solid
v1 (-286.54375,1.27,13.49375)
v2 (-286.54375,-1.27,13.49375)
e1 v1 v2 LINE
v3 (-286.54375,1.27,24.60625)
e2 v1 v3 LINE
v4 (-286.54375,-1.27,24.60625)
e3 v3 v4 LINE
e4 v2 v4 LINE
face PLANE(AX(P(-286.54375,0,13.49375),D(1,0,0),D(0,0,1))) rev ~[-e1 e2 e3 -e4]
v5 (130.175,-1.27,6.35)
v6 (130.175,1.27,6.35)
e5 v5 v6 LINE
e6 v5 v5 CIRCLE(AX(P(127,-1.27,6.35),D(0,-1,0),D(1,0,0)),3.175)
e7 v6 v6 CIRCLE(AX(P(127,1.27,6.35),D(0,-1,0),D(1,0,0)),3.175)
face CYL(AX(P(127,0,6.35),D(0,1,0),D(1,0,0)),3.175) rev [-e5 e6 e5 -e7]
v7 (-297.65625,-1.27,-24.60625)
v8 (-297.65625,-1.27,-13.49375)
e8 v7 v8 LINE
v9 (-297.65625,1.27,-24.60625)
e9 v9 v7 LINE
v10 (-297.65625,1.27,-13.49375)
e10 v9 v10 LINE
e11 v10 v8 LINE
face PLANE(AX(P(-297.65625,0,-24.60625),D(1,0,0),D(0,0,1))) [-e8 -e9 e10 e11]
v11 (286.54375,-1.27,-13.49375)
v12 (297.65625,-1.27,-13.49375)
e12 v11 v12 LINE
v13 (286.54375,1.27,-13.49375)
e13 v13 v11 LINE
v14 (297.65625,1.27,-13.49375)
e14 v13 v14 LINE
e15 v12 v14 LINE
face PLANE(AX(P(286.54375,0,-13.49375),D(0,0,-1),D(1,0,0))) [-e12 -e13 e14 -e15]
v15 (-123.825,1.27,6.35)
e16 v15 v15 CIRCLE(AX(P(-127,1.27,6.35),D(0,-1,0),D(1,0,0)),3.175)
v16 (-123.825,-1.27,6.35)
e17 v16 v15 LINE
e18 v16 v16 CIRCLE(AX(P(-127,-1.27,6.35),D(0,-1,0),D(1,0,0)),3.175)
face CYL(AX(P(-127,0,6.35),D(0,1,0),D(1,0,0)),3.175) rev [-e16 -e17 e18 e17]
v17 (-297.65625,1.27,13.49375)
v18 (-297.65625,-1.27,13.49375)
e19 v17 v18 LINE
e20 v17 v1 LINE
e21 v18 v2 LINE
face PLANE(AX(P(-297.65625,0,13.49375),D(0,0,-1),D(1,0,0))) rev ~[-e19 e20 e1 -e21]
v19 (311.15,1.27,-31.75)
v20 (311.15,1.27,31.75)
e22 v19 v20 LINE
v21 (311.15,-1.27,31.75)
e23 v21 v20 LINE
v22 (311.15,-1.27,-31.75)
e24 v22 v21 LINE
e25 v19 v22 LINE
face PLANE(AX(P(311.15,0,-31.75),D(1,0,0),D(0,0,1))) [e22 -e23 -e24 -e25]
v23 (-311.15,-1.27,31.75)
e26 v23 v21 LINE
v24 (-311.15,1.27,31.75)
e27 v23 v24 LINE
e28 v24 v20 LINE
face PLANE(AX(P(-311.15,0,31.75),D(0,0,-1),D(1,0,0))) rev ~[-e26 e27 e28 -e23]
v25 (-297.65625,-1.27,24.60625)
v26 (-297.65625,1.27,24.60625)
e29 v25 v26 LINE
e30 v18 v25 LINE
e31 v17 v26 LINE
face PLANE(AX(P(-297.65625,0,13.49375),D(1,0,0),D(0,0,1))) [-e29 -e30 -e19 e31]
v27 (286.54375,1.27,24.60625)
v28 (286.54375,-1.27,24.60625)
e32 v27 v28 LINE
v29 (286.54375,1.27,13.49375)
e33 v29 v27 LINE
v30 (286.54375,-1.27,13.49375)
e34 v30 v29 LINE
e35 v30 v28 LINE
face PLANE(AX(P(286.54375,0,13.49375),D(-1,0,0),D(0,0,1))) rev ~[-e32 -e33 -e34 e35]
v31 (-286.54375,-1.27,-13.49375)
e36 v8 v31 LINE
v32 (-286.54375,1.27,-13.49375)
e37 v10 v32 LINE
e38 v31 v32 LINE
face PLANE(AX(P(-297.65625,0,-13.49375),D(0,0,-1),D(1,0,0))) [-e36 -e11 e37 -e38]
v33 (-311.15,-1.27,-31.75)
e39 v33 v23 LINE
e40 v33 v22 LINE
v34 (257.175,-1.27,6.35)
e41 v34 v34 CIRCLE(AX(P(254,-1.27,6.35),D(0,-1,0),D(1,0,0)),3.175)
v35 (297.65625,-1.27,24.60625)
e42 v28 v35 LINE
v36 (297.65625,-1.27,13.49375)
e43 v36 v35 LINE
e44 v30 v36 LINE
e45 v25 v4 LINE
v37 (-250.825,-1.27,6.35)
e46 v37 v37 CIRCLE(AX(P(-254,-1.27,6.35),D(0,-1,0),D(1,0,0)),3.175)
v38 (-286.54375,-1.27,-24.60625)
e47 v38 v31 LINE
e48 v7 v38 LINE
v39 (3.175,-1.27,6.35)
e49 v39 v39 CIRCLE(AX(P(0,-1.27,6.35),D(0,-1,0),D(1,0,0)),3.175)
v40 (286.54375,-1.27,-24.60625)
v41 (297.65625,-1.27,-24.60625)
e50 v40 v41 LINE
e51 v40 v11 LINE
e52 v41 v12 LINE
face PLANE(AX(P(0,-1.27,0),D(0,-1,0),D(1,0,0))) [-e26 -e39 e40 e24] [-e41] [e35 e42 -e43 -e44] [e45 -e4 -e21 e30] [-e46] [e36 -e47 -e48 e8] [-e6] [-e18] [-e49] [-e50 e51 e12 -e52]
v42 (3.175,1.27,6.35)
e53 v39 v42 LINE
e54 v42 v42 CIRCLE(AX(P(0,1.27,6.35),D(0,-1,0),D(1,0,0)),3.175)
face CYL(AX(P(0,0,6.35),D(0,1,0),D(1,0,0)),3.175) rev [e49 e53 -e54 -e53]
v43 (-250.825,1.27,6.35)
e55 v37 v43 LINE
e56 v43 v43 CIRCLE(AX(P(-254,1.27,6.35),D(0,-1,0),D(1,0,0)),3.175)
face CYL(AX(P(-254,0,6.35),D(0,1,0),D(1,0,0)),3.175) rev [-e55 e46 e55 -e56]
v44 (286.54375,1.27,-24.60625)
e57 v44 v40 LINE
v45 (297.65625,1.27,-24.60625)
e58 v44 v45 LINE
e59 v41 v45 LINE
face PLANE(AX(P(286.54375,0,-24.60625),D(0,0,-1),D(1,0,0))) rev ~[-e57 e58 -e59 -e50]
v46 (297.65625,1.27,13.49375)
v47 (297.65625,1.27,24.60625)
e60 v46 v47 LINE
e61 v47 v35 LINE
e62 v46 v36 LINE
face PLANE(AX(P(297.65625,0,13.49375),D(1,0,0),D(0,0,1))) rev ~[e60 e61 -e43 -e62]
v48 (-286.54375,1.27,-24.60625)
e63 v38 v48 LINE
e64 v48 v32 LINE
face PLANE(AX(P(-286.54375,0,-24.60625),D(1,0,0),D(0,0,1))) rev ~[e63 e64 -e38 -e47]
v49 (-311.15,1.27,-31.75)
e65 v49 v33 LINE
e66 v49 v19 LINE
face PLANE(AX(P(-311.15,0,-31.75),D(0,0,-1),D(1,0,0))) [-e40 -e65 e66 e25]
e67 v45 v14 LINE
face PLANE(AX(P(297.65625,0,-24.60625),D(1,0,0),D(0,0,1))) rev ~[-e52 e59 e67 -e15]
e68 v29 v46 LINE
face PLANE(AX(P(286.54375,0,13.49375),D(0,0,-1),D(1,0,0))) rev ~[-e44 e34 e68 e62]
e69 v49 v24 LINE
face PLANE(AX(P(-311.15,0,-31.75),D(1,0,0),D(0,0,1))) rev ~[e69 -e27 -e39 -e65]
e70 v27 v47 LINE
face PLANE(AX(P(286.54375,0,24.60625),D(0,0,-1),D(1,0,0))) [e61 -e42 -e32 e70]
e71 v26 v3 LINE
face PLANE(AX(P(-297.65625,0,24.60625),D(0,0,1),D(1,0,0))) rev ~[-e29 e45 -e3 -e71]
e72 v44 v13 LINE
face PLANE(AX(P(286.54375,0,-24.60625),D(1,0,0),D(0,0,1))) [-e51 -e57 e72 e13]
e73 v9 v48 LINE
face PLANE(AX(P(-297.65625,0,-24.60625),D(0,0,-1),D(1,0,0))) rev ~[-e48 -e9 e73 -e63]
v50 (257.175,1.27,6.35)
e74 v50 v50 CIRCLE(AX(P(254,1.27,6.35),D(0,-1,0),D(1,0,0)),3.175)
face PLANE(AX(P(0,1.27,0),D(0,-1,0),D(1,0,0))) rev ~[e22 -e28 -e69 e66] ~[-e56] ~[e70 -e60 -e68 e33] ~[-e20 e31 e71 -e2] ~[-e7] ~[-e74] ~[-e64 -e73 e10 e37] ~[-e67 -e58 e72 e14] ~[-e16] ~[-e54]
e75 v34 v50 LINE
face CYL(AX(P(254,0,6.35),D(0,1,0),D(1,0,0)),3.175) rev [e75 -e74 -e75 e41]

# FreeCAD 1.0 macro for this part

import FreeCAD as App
import Part
import Sketcher

V = App.Vector
Q = App.Units.Quantity


def add_polygon(sketch, points):
    """Adds a closed chain of lines whose ends are joined by coincident constraints."""
    first, n = sketch.GeometryCount, len(points)
    for a, b in zip(points, points[1:] + points[:1]):
        sketch.addGeometry(Part.LineSegment(App.Vector(*a, 0), App.Vector(*b, 0)), False)
    for i in range(n):
        sketch.addConstraint(Sketcher.Constraint("Coincident", first + i, 2, first + (i + 1) % n, 1))

doc = App.newDocument("Part")
body = doc.addObject("PartDesign::Body", "Body")

sketch1 = body.newObject("Sketcher::SketchObject", "Sketch")
sketch1.AttachmentSupport = (doc.getObject("XZ_Plane"), [""])
sketch1.MapMode = "FlatFace"
add_polygon(sketch1, [(-311.15, 31.75), (-311.15, -31.75), (311.15, -31.75), (311.15, 31.75)])
add_polygon(sketch1, [(-286.54375, -24.60625), (-297.65625, -24.60625), (-297.65625, -13.49375), (-286.54375, -13.49375)])
add_polygon(sketch1, [(297.65625, -24.60625), (286.54375, -24.60625), (286.54375, -13.49375), (297.65625, -13.49375)])
sketch1.addGeometry(Part.Circle(V(-254, 6.35, 0), V(0, 0, 1), 3.175), False)
sketch1.addGeometry(Part.Circle(V(-127, 6.35, 0), V(0, 0, 1), 3.175), False)
add_polygon(sketch1, [(-286.54375, 13.49375), (-297.65625, 13.49375), (-297.65625, 24.60625), (-286.54375, 24.60625)])
sketch1.addGeometry(Part.Circle(V(0, 6.35, 0), V(0, 0, 1), 3.175), False)
sketch1.addGeometry(Part.Circle(V(127, 6.35, 0), V(0, 0, 1), 3.175), False)
sketch1.addGeometry(Part.Circle(V(254, 6.35, 0), V(0, 0, 1), 3.175), False)
add_polygon(sketch1, [(297.65625, 13.49375), (286.54375, 13.49375), (286.54375, 24.60625), (297.65625, 24.60625)])
sketch1.addConstraint(Sketcher.Constraint("Vertical", 0))
sketch1.addConstraint(Sketcher.Constraint("Horizontal", 1))
sketch1.addConstraint(Sketcher.Constraint("Vertical", 2))
sketch1.addConstraint(Sketcher.Constraint("Horizontal", 3))
sketch1.addConstraint(Sketcher.Constraint("Horizontal", 4))
sketch1.addConstraint(Sketcher.Constraint("Vertical", 5))
sketch1.addConstraint(Sketcher.Constraint("Horizontal", 6))
sketch1.addConstraint(Sketcher.Constraint("Vertical", 7))
sketch1.addConstraint(Sketcher.Constraint("Horizontal", 8))
sketch1.addConstraint(Sketcher.Constraint("Vertical", 9))
sketch1.addConstraint(Sketcher.Constraint("Horizontal", 10))
sketch1.addConstraint(Sketcher.Constraint("Vertical", 11))
sketch1.addConstraint(Sketcher.Constraint("Horizontal", 14))
sketch1.addConstraint(Sketcher.Constraint("Vertical", 15))
sketch1.addConstraint(Sketcher.Constraint("Horizontal", 16))
sketch1.addConstraint(Sketcher.Constraint("Vertical", 17))
sketch1.addConstraint(Sketcher.Constraint("Horizontal", 21))
sketch1.addConstraint(Sketcher.Constraint("Vertical", 22))
sketch1.addConstraint(Sketcher.Constraint("Horizontal", 23))
sketch1.addConstraint(Sketcher.Constraint("Vertical", 24))
sketch1.addConstraint(Sketcher.Constraint("Equal", 12, 13))
sketch1.addConstraint(Sketcher.Constraint("Equal", 13, 18))
sketch1.addConstraint(Sketcher.Constraint("Equal", 18, 19))
sketch1.addConstraint(Sketcher.Constraint("Equal", 19, 20))
sketch1.addConstraint(Sketcher.Constraint("Symmetric", 0, 2, 2, 2, -1, 1))
sketch1.addConstraint(Sketcher.Constraint("Symmetric", 10, 2, 14, 2, -1, 1))
sketch1.addConstraint(Sketcher.Constraint("Symmetric", 8, 2, 16, 2, -1, 1))
sketch1.addConstraint(Sketcher.Constraint("Symmetric", 6, 2, 21, 2, -1, 1))
sketch1.addConstraint(Sketcher.Constraint("Symmetric", 4, 2, 23, 2, -1, 1))
sketch1.addConstraint(Sketcher.Constraint("Symmetric", 13, 3, 19, 3, -2))
sketch1.addConstraint(Sketcher.Constraint("Symmetric", 12, 3, 20, 3, -2))
sketch1.addConstraint(Sketcher.Constraint("Symmetric", 7, 2, 8, 2, -2))
sketch1.addConstraint(Sketcher.Constraint("Symmetric", 5, 2, 10, 2, -2))
sketch1.addConstraint(Sketcher.Constraint("PointOnObject", 18, 3, -2))
sketch1.addConstraint(Sketcher.Constraint("Horizontal", 12, 3, 13, 3))
sketch1.addConstraint(Sketcher.Constraint("Horizontal", 13, 3, 18, 3))
sketch1.addConstraint(Sketcher.Constraint("Equal", 23, 5))
sketch1.addConstraint(Sketcher.Constraint("Diameter", 12, Q("0.25 in")))
sketch1.addConstraint(Sketcher.Constraint("DistanceX", 1, 1, 1, 2, Q("24.5 in")))
sketch1.addConstraint(Sketcher.Constraint("DistanceY", 0, 2, 0, 1, Q("2.5 in")))
sketch1.addConstraint(Sketcher.Constraint("DistanceX", 12, 3, -1, 1, Q("10 in")))
sketch1.addConstraint(Sketcher.Constraint("DistanceX", 13, 3, -1, 1, Q("5 in")))
sketch1.addConstraint(Sketcher.Constraint("DistanceY", 20, 3, 2, 2, Q("1 in")))
sketch1.addConstraint(Sketcher.Constraint("DistanceY", 4, 2, 14, 2, Q("1.5 in")))
sketch1.addConstraint(Sketcher.Constraint("DistanceX", 4, 2, 4, 1, Q("0.4375 in")))
sketch1.addConstraint(Sketcher.Constraint("DistanceX", 4, 2, -1, 1, Q("11.71875 in")))
pad1 = body.newObject("PartDesign::Pad", "Pad")
pad1.Profile = sketch1
pad1.Length = Q("0.1 in")
pad1.Midplane = True

doc.recompute()
